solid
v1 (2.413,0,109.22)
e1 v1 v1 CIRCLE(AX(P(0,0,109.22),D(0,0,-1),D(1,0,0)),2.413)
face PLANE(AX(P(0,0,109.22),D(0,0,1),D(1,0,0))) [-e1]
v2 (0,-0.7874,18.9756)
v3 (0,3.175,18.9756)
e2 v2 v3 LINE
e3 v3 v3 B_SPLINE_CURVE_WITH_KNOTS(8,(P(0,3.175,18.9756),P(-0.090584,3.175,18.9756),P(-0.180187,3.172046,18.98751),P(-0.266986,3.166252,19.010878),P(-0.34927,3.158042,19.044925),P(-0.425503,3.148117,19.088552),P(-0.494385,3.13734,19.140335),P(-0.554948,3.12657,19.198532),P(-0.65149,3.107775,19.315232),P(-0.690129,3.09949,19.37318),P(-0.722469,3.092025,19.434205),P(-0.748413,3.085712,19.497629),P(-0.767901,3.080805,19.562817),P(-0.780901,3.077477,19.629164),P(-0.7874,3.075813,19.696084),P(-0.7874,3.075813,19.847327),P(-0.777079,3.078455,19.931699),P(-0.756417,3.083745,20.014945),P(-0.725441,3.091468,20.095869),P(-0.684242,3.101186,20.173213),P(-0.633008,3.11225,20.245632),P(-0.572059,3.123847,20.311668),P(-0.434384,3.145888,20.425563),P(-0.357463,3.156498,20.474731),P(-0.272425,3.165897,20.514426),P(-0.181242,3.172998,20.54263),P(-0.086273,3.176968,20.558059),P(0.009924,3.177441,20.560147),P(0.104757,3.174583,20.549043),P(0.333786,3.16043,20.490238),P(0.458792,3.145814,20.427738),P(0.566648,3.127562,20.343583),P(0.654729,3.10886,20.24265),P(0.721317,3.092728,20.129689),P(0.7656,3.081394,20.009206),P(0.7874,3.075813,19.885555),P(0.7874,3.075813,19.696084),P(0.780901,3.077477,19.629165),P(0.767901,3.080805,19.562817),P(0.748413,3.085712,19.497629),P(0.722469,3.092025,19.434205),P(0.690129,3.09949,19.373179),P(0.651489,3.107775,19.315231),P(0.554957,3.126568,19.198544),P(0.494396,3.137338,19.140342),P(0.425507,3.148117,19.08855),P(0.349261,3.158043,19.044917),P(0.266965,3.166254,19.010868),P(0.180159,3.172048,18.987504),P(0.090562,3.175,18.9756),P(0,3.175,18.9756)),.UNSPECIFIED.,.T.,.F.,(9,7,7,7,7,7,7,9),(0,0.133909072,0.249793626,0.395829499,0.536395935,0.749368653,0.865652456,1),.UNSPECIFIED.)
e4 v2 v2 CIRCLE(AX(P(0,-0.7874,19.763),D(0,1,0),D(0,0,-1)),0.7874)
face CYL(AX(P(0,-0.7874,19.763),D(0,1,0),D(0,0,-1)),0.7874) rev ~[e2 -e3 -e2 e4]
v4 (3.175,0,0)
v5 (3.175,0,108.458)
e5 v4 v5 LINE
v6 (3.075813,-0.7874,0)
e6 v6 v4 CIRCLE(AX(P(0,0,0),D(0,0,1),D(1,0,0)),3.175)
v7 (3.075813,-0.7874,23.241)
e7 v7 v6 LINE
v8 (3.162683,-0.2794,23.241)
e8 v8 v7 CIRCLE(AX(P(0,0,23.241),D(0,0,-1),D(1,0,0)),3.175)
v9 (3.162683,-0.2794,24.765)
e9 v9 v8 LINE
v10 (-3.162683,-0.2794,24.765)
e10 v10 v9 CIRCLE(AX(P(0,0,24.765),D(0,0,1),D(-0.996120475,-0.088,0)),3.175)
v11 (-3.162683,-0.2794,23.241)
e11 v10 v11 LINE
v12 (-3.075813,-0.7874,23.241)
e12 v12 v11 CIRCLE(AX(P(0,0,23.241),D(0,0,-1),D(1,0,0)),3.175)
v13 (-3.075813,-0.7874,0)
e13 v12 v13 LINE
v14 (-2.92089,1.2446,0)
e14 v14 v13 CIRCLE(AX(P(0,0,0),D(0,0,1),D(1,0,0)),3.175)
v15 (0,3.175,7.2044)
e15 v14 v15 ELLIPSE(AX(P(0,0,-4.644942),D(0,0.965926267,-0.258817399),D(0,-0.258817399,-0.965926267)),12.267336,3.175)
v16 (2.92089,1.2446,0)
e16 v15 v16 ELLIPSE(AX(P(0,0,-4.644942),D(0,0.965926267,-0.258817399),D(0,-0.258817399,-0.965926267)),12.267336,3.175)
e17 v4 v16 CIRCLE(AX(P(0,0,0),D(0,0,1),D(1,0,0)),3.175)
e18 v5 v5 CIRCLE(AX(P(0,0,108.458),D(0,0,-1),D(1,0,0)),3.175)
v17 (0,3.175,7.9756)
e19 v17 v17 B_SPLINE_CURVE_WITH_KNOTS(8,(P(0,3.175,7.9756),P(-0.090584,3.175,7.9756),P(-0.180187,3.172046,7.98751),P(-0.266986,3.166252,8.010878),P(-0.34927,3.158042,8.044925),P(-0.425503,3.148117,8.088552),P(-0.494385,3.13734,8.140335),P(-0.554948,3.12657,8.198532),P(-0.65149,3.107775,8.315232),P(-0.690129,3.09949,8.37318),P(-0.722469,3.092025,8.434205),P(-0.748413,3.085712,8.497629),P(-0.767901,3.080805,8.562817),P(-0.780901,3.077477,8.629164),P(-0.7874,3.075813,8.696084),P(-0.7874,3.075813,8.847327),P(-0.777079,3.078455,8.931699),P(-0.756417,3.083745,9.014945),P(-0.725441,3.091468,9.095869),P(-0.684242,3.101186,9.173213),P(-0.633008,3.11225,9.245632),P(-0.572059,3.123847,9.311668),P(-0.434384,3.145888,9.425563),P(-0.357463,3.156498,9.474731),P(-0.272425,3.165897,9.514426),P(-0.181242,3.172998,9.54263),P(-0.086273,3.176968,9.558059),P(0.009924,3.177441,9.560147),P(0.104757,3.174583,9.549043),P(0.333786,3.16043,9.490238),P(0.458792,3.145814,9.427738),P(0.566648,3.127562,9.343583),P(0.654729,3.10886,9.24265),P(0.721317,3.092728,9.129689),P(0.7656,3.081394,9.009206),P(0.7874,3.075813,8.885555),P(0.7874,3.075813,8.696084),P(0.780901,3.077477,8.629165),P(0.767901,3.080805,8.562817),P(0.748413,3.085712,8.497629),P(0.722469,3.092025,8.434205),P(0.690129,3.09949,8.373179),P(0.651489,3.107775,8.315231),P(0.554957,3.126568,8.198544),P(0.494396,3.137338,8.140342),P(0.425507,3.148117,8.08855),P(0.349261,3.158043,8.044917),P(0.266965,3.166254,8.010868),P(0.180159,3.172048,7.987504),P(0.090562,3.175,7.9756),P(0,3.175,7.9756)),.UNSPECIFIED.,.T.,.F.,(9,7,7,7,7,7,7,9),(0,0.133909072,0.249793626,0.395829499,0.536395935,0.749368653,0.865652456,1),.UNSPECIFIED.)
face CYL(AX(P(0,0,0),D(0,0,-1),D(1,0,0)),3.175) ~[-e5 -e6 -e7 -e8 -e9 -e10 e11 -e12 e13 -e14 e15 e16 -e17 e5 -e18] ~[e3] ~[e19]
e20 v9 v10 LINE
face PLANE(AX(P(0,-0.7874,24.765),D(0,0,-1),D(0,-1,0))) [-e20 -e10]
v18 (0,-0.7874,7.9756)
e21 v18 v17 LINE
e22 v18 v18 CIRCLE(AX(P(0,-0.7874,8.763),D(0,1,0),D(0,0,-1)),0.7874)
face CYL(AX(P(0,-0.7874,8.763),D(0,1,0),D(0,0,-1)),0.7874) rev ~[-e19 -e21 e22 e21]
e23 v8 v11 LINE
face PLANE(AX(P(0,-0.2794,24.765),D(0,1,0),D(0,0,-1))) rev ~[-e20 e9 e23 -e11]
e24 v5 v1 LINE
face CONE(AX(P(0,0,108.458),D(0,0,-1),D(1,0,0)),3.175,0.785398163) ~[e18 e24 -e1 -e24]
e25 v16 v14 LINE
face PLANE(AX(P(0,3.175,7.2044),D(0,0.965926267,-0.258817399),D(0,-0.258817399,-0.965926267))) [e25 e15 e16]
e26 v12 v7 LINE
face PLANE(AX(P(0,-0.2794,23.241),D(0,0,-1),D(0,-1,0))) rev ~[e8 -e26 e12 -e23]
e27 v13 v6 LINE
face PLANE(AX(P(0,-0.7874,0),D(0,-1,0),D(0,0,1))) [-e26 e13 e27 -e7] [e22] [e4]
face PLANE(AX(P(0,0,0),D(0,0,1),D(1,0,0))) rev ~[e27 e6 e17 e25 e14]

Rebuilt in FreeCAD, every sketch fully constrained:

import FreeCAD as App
import Part
import Sketcher
Q = App.Units.Quantity


def edges_at(feature, points):
    """Names of the edges that pass closest to the given points."""
    edges = feature.Shape.Edges
    near = lambda p: min(range(len(edges)), key=lambda i: edges[i].distToShape(Part.Vertex(*p))[0])
    return sorted({f"Edge{near(p) + 1}" for p in points})


def add_polygon(sketch, points):
    """Adds a closed chain of lines whose ends are joined by coincident constraints."""
    first, n = sketch.GeometryCount, len(points)
    for a, b in zip(points, points[1:] + points[:1]):
        sketch.addGeometry(Part.LineSegment(App.Vector(*a, 0), App.Vector(*b, 0)), False)
    for i in range(n):
        sketch.addConstraint(Sketcher.Constraint("Coincident", first + i, 2, first + (i + 1) % n, 1))

doc = App.newDocument("Part")
body = doc.addObject("PartDesign::Body", "Body")

sketch1 = doc.addObject("Sketcher::SketchObject", "Sketch")
body.addObject(sketch1)
sketch1.AttachmentSupport = (doc.XY_Plane, [""])
sketch1.MapMode = "FlatFace"
sketch1.addGeometry(Part.Circle(App.Vector(0, 0, 0), App.Vector(0, 0, 1), 3.2), False)
sketch1.addConstraint([
    Sketcher.Constraint("Coincident", 0, 3, -1, 1),
    Sketcher.Constraint("Diameter", 0, Q("0.25 in")),
])
pad1 = doc.addObject("PartDesign::Pad", "Pad")
body.addObject(pad1)
pad1.Profile = sketch1
pad1.Length = Q("4.3 in")

sketch2 = doc.addObject("Sketcher::SketchObject", "Sketch001")
body.addObject(sketch2)
sketch2.AttachmentSupport = (doc.YZ_Plane, [""])
sketch2.MapMode = "FlatFace"
add_polygon(sketch2, [(-3.2, 24.8), (-3.2, 0), (-0.8, 0), (-0.8, 23.2), (-0.3, 23.2), (-0.3, 24.8)])
sketch2.addConstraint([
    Sketcher.Constraint("Vertical", 0),
    Sketcher.Constraint("Horizontal", 1),
    Sketcher.Constraint("Vertical", 2),
    Sketcher.Constraint("Horizontal", 3),
    Sketcher.Constraint("Vertical", 4),
    Sketcher.Constraint("Horizontal", 5),
    Sketcher.Constraint("PointOnObject", 0, 2, -1),
    Sketcher.Constraint("DistanceX", 3, 1, 3, 2, Q("0.02 in")),
    Sketcher.Constraint("DistanceY", 4, 1, 4, 2, Q("0.06 in")),
    Sketcher.Constraint("DistanceY", 0, 2, 0, 1, Q("0.975 in")),
    Sketcher.Constraint("DistanceX", 1, 1, 1, 2, Q("0.094 in")),
    Sketcher.Constraint("DistanceX", 0, 2, -1, 1, Q("0.125 in")),
])
pocket1 = doc.addObject("PartDesign::Pocket", "Pocket")
body.addObject(pocket1)
pocket1.Profile = sketch2
pocket1.Length = Q("1 in")
pocket1.Midplane = True

sketch3 = doc.addObject("Sketcher::SketchObject", "Sketch002")
body.addObject(sketch3)
sketch3.AttachmentSupport = (doc.XZ_Plane, [""])
sketch3.MapMode = "FlatFace"
sketch3.AttachmentOffset = App.Placement(App.Vector(0, 0, 0.031 * 25.4), App.Rotation())
sketch3.addGeometry([
    Part.Circle(App.Vector(0, 8.8, 0), App.Vector(0, 0, 1), 0.8),
    Part.Circle(App.Vector(0, 19.8, 0), App.Vector(0, 0, 1), 0.8),
], False)
sketch3.addConstraint([
    Sketcher.Constraint("Equal", 0, 1),
    Sketcher.Constraint("PointOnObject", 0, 3, -2),
    Sketcher.Constraint("PointOnObject", 1, 3, -2),
    Sketcher.Constraint("Diameter", 0, Q("0.062 in")),
    Sketcher.Constraint("DistanceY", -1, 1, 0, 3, Q("0.345 in")),
    Sketcher.Constraint("DistanceY", -1, 1, 1, 3, 19.763),
])
doc.recompute()
hole = doc.addObject("PartDesign::Hole", "Hole")
body.addObject(hole)
hole.Profile = sketch3
hole.ThreadType = "None"
hole.Diameter = Q("0.062 in")
hole.DepthType = "ThroughAll"
doc.recompute()

chamfer = doc.addObject("PartDesign::Chamfer", "Chamfer")
body.addObject(chamfer)
chamfer.Base = (hole, edges_at(hole, [(-3.175, 0, 109.22)]))
chamfer.Size = Q("0.03 in")

sketch4 = doc.addObject("Sketcher::SketchObject", "Sketch003")
body.addObject(sketch4)
sketch4.AttachmentSupport = (doc.YZ_Plane, [""])
sketch4.MapMode = "FlatFace"
add_polygon(sketch4, [(1.2, 0), (3.2, 0), (3.2, 7.2)])
sketch4.addConstraint([
    Sketcher.Constraint("Horizontal", 0),
    Sketcher.Constraint("Vertical", 1),
    Sketcher.Constraint("PointOnObject", 0, 2, -1),
    Sketcher.Constraint("DistanceX", 0, 1, 0, 2, Q("0.076 in")),
    Sketcher.Constraint("Angle", 2, Q("-105 deg")),
    Sketcher.Constraint("DistanceX", -1, 1, 0, 2, Q("0.125 in")),
])
pocket2 = doc.addObject("PartDesign::Pocket", "Pocket001")
body.addObject(pocket2)
pocket2.Profile = sketch4
pocket2.Length = Q("1 in")
pocket2.Midplane = True

doc.recompute()
